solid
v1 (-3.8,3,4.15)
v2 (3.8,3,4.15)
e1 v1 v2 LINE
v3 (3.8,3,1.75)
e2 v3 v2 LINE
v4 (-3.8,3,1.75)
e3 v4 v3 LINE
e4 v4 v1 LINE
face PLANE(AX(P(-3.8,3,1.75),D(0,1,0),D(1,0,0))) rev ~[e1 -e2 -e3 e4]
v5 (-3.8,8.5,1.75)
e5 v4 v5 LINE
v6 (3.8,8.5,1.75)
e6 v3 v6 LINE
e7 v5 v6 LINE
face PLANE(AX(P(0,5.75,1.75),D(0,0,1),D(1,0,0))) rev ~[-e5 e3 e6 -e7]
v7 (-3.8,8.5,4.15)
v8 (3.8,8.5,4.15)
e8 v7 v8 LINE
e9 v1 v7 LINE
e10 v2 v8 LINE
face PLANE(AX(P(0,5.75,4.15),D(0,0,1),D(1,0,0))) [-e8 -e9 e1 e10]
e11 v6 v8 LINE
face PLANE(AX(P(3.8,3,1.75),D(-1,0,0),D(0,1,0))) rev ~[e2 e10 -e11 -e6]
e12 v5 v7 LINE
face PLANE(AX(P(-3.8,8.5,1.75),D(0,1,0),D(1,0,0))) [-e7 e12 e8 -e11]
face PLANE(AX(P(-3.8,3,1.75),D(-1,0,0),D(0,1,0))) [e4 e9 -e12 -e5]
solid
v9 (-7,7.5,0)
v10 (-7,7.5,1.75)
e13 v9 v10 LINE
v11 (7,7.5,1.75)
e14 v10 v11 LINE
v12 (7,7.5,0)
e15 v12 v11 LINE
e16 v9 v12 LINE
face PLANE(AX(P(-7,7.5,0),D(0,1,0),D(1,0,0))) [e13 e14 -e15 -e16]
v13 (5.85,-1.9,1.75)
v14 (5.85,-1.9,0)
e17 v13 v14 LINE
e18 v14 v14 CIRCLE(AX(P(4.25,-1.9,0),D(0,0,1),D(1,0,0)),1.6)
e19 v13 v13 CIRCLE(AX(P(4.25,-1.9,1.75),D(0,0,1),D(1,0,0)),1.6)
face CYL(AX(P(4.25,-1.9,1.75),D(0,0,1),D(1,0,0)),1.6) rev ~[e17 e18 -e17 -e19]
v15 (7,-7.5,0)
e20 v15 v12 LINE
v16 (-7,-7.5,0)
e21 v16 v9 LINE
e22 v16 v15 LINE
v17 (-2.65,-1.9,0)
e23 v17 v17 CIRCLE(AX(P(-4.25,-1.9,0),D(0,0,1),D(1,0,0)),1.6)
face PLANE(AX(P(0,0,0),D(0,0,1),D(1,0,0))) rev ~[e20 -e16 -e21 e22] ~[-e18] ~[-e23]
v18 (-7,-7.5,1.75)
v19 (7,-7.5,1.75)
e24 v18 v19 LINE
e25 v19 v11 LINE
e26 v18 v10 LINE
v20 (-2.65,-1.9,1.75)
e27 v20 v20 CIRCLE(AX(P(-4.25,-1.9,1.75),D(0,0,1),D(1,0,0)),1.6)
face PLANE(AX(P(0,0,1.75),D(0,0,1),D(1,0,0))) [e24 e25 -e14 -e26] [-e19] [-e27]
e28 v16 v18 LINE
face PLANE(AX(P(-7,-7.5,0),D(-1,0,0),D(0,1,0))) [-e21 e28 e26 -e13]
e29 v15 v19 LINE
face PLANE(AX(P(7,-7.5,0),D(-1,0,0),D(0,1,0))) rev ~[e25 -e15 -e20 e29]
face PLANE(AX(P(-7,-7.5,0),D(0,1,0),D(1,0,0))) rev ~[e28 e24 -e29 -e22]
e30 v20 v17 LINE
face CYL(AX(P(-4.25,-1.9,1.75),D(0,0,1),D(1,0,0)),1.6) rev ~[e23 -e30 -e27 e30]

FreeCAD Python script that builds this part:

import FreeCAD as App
import Part
import Sketcher

V = App.Vector


def add_polygon(sketch, points):
    """Adds a closed chain of lines whose ends are joined by coincident constraints."""
    first, n = sketch.GeometryCount, len(points)
    for a, b in zip(points, points[1:] + points[:1]):
        sketch.addGeometry(Part.LineSegment(App.Vector(*a, 0), App.Vector(*b, 0)), False)
    for i in range(n):
        sketch.addConstraint(Sketcher.Constraint("Coincident", first + i, 2, first + (i + 1) % n, 1))

doc = App.newDocument("Part")
body = doc.addObject("PartDesign::Body", "Body")

# Sketch on XY plane
sketch1 = doc.addObject("Sketcher::SketchObject", "Sketch")
body.addObject(sketch1)
sketch1.AttachmentSupport = (doc.XY_Plane, [""])
sketch1.MapMode = "FlatFace"
add_polygon(sketch1, [(-7, 8), (-7, -8), (7, -8), (7, 8)])  # lines 0-3
sketch1.addConstraint([
    Sketcher.Constraint("Vertical", 0),
    Sketcher.Constraint("Horizontal", 1),
    Sketcher.Constraint("Vertical", 2),
    Sketcher.Constraint("Horizontal", 3),
    Sketcher.Constraint("Symmetric", 0, 2, 2, 2, -1, 1),
    Sketcher.Constraint("DistanceX", 1, 1, 1, 2, 14.0),
    Sketcher.Constraint("DistanceY", 0, 2, 0, 1, 15.0),
])
pad1 = doc.addObject("PartDesign::Pad", "Pad")
body.addObject(pad1)
pad1.Profile = sketch1
pad1.Length = 1.75

# Sketch on XY plane
sketch2 = doc.addObject("Sketcher::SketchObject", "Sketch001")
body.addObject(sketch2)
sketch2.AttachmentSupport = (doc.XY_Plane, [""])
sketch2.MapMode = "FlatFace"
sketch2.AttachmentOffset = App.Placement(V(0, 0, 1.75), App.Rotation())
sketch2.addGeometry([
    Part.Circle(V(-4.2, -1.9, 0), V(0, 0, 1), 1.6),
    Part.Circle(V(4.2, -1.9, 0), V(0, 0, 1), 1.6),
], False)
sketch2.addConstraint([
    Sketcher.Constraint("Equal", 0, 1),
    Sketcher.Constraint("Symmetric", 0, 3, 1, 3, -2),
    Sketcher.Constraint("Diameter", 0, 3.2),
    Sketcher.Constraint("DistanceY", 0, 3, -1, 1, 1.9),
    Sketcher.Constraint("DistanceX", 0, 3, 1, 3, 8.5),
])
pocket1 = doc.addObject("PartDesign::Pocket", "Pocket")
body.addObject(pocket1)
pocket1.Profile = sketch2
pocket1.Length = 5
body2 = doc.addObject("PartDesign::Body", "Body001")

# Sketch on XY plane
sketch3 = doc.addObject("Sketcher::SketchObject", "Sketch002")
body2.addObject(sketch3)
sketch3.AttachmentSupport = (doc.getObject("XY_Plane001"), [""])
sketch3.MapMode = "FlatFace"
sketch3.AttachmentOffset = App.Placement(V(0, 0, 1.75), App.Rotation())
add_polygon(sketch3, [(-4, 8), (-4, 3), (4, 3), (4, 8)])  # lines 0-3
sketch3.addConstraint([
    Sketcher.Constraint("Vertical", 0),
    Sketcher.Constraint("Horizontal", 1),
    Sketcher.Constraint("Vertical", 2),
    Sketcher.Constraint("Horizontal", 3),
    Sketcher.Constraint("DistanceX", 1, 1, 1, 2, 7.6),
    Sketcher.Constraint("DistanceY", 0, 2, 0, 1, 5.5),
    Sketcher.Constraint("DistanceY", -1, 1, 0, 2, 3.0),
    Sketcher.Constraint("DistanceX", 0, 2, -1, 1, 3.8),
])
pad2 = doc.addObject("PartDesign::Pad", "Pad001")
body2.addObject(pad2)
pad2.Profile = sketch3
pad2.Length = 2.4

doc.recompute()
